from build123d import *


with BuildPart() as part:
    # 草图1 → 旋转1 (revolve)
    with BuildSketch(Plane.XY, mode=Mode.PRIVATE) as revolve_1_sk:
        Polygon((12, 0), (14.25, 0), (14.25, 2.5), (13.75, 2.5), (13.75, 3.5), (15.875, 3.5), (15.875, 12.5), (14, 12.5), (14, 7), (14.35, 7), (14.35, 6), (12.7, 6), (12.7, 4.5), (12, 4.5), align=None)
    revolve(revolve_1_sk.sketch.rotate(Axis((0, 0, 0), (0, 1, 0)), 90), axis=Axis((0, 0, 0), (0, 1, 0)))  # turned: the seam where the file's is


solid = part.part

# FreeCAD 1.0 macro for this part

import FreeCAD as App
import Part
import Sketcher

V = App.Vector

doc = App.newDocument("Part")
params = doc.addObject("Spreadsheet::Sheet", "Params")
for row, (alias, value) in enumerate([
    ("sketch1_height", "1 mm"),
    ("sketch1_height2", "9 mm"),
    ("sketch1_width", "0.5 mm"),
    ("sketch1_width2", "0.7 mm"),
    ("sketch1_height3", "2.5 mm"),
    ("revolution_angle", "360 deg"),
], start=1):
    params.set(f"A{row}", alias)
    params.set(f"B{row}", "=" + value)
    params.setAlias(f"B{row}", alias)

body = doc.addObject("PartDesign::Body", "Body")

# Sketch on XY plane
sketch1 = body.newObject("Sketcher::SketchObject", "Sketch")
sketch1.AttachmentSupport = (doc.getObject("XY_Plane"), [""])
sketch1.MapMode = "FlatFace"
sketch1.addGeometry(Part.LineSegment(V(12, 0, 0), V(14.25, 0, 0)), False)
sketch1.addGeometry(Part.LineSegment(V(14.25, 0, 0), V(14.25, 2.5, 0)), False)
sketch1.addGeometry(Part.LineSegment(V(14.25, 2.5, 0), V(13.75, 2.5, 0)), False)
sketch1.addGeometry(Part.LineSegment(V(13.75, 2.5, 0), V(13.75, 3.5, 0)), False)
sketch1.addGeometry(Part.LineSegment(V(13.75, 3.5, 0), V(15.875, 3.5, 0)), False)
sketch1.addGeometry(Part.LineSegment(V(15.875, 3.5, 0), V(15.875, 12.5, 0)), False)
sketch1.addGeometry(Part.LineSegment(V(15.875, 12.5, 0), V(14, 12.5, 0)), False)
sketch1.addGeometry(Part.LineSegment(V(14, 12.5, 0), V(14, 7, 0)), False)
sketch1.addGeometry(Part.LineSegment(V(14, 7, 0), V(14.35, 7, 0)), False)
sketch1.addGeometry(Part.LineSegment(V(14.35, 7, 0), V(14.35, 6, 0)), False)
sketch1.addGeometry(Part.LineSegment(V(14.35, 6, 0), V(12.7, 6, 0)), False)
sketch1.addGeometry(Part.LineSegment(V(12.7, 6, 0), V(12.7, 4.5, 0)), False)
sketch1.addGeometry(Part.LineSegment(V(12.7, 4.5, 0), V(12, 4.5, 0)), False)
sketch1.addGeometry(Part.LineSegment(V(12, 4.5, 0), V(12, 0, 0)), False)
sketch1.addConstraint(Sketcher.Constraint("Coincident", 0, 2, 1, 1))
sketch1.addConstraint(Sketcher.Constraint("Coincident", 1, 2, 2, 1))
sketch1.addConstraint(Sketcher.Constraint("Coincident", 2, 2, 3, 1))
sketch1.addConstraint(Sketcher.Constraint("Coincident", 3, 2, 4, 1))
sketch1.addConstraint(Sketcher.Constraint("Coincident", 4, 2, 5, 1))
sketch1.addConstraint(Sketcher.Constraint("Coincident", 5, 2, 6, 1))
sketch1.addConstraint(Sketcher.Constraint("Coincident", 6, 2, 7, 1))
sketch1.addConstraint(Sketcher.Constraint("Coincident", 7, 2, 8, 1))
sketch1.addConstraint(Sketcher.Constraint("Coincident", 8, 2, 9, 1))
sketch1.addConstraint(Sketcher.Constraint("Coincident", 9, 2, 10, 1))
sketch1.addConstraint(Sketcher.Constraint("Coincident", 10, 2, 11, 1))
sketch1.addConstraint(Sketcher.Constraint("Coincident", 11, 2, 12, 1))
sketch1.addConstraint(Sketcher.Constraint("Coincident", 12, 2, 13, 1))
sketch1.addConstraint(Sketcher.Constraint("Coincident", 13, 2, 0, 1))
sketch1.addConstraint(Sketcher.Constraint("Horizontal", 0))
sketch1.addConstraint(Sketcher.Constraint("Vertical", 1))
sketch1.addConstraint(Sketcher.Constraint("Horizontal", 2))
sketch1.addConstraint(Sketcher.Constraint("Vertical", 3))
sketch1.addConstraint(Sketcher.Constraint("Horizontal", 4))
sketch1.addConstraint(Sketcher.Constraint("Vertical", 5))
sketch1.addConstraint(Sketcher.Constraint("Horizontal", 6))
sketch1.addConstraint(Sketcher.Constraint("Vertical", 7))
sketch1.addConstraint(Sketcher.Constraint("Horizontal", 8))
sketch1.addConstraint(Sketcher.Constraint("Vertical", 9))
sketch1.addConstraint(Sketcher.Constraint("Horizontal", 10))
sketch1.addConstraint(Sketcher.Constraint("Vertical", 11))
sketch1.addConstraint(Sketcher.Constraint("Horizontal", 12))
sketch1.addConstraint(Sketcher.Constraint("Vertical", 13))
sketch1.addConstraint(Sketcher.Constraint("PointOnObject", 0, 2, -1))
sketch1.addConstraint(Sketcher.Constraint("Equal", 3, 9))
sketch1.addConstraint(Sketcher.Constraint("DistanceY", 3, 1, 3, 2, 1.0))
sketch1.addConstraint(Sketcher.Constraint("DistanceY", 5, 1, 5, 2, 9.0))
sketch1.addConstraint(Sketcher.Constraint("DistanceX", 2, 2, 2, 1, 0.5))
sketch1.addConstraint(Sketcher.Constraint("DistanceX", 12, 2, 12, 1, 0.7))
sketch1.addConstraint(Sketcher.Constraint("DistanceY", 1, 1, 1, 2, 2.5))
sketch1.addConstraint(Sketcher.Constraint("DistanceY", 7, 2, 7, 1, 5.5))
sketch1.addConstraint(Sketcher.Constraint("DistanceY", 11, 2, 11, 1, 1.5))
sketch1.addConstraint(Sketcher.Constraint("DistanceX", -1, 1, 6, 2, 14.0))
sketch1.addConstraint(Sketcher.Constraint("DistanceX", -1, 1, 12, 2, 12.0))
sketch1.addConstraint(Sketcher.Constraint("DistanceX", 0, 1, 0, 2, 2.25))
sketch1.addConstraint(Sketcher.Constraint("DistanceX", 8, 1, 8, 2, 0.35))
sketch1.addConstraint(Sketcher.Constraint("DistanceX", 4, 1, 4, 2, 2.125))
sketch1.setExpression("Constraints[30]", "Params.sketch1_height")
sketch1.setExpression("Constraints[31]", "Params.sketch1_height2")
sketch1.setExpression("Constraints[32]", "Params.sketch1_width")
sketch1.setExpression("Constraints[33]", "Params.sketch1_width2")
sketch1.setExpression("Constraints[34]", "Params.sketch1_height3")
revolution = body.newObject("PartDesign::Revolution", "Revolution")
revolution.Profile = sketch1
revolution.ReferenceAxis = (sketch1, ["V_Axis"])
revolution.setExpression("Angle", "Params.revolution_angle")

doc.recompute()
